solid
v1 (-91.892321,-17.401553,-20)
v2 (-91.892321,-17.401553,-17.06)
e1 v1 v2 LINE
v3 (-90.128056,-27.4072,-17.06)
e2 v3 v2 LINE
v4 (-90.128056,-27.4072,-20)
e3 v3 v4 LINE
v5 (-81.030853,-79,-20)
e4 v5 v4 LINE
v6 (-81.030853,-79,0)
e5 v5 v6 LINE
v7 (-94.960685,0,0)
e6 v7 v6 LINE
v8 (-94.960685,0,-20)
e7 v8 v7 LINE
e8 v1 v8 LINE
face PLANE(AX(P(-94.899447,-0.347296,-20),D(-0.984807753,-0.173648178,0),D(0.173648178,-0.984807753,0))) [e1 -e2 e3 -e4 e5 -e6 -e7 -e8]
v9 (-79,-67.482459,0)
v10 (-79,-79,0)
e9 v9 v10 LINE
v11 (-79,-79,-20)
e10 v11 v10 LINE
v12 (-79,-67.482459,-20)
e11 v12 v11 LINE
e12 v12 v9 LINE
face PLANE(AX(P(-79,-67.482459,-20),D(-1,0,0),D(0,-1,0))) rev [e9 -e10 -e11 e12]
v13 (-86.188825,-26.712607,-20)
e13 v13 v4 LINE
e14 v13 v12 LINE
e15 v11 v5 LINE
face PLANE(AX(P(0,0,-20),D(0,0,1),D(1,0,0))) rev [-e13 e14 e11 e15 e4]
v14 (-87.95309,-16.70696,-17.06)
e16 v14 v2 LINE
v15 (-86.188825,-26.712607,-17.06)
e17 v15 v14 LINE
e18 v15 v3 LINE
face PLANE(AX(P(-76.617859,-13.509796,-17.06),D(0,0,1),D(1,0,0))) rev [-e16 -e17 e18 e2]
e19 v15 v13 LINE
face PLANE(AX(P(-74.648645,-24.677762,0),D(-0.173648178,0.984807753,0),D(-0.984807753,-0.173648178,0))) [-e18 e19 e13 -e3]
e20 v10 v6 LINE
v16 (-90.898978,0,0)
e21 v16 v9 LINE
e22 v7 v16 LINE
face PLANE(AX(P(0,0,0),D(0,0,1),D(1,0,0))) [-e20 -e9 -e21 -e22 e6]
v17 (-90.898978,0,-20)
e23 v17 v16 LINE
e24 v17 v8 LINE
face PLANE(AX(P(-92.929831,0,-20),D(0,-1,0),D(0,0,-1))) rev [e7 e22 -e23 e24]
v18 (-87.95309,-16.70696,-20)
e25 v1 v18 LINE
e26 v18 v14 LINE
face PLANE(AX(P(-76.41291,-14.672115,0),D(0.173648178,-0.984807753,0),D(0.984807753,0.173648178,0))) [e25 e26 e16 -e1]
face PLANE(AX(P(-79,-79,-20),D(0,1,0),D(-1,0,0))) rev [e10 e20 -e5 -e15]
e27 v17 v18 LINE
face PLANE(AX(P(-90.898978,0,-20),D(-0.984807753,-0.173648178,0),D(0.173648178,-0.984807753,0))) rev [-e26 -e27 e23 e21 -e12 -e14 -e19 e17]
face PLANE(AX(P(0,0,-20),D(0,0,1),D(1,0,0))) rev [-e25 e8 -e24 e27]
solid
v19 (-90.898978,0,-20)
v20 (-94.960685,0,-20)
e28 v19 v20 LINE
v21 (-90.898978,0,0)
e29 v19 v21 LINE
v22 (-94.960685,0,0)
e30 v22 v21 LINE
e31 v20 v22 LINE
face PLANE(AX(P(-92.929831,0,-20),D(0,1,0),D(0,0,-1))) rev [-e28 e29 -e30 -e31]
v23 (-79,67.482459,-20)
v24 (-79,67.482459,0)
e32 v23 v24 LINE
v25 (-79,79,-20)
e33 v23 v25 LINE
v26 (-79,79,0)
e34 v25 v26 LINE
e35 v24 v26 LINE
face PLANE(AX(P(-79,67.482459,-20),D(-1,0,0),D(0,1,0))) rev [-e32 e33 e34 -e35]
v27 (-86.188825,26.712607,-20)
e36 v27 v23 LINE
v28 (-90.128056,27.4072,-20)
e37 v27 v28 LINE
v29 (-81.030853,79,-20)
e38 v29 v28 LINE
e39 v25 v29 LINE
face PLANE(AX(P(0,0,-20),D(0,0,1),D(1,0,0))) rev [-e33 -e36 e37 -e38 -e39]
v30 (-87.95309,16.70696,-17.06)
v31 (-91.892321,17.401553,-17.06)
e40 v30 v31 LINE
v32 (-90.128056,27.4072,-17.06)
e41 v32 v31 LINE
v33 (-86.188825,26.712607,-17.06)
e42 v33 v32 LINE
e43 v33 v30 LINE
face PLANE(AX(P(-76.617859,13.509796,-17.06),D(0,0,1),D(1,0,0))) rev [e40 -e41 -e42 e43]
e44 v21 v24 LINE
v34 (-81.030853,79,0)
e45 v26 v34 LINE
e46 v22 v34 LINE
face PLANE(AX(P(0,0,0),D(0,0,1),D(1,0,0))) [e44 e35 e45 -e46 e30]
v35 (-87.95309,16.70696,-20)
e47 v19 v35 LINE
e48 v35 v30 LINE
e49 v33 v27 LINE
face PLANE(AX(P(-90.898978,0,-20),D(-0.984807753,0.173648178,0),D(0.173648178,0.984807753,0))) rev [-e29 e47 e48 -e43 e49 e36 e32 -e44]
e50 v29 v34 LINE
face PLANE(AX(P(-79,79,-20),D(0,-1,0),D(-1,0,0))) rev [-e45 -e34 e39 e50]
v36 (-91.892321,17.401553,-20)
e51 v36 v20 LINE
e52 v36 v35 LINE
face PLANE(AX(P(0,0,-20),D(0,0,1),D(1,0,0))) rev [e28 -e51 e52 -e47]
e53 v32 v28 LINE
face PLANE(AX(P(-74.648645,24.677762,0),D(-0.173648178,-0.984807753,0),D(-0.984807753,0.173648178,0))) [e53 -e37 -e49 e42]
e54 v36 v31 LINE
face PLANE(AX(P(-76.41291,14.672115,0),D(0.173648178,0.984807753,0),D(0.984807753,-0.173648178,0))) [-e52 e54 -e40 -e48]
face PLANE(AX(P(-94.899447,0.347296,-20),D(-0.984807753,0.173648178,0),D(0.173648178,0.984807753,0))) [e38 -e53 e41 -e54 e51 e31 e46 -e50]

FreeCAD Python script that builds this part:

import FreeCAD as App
import Part
import Sketcher

V = App.Vector
Q = App.Units.Quantity

doc = App.newDocument("Part")
body = doc.addObject("PartDesign::Body", "Body")

sketch1 = body.newObject("Sketcher::SketchObject", "Sketch")
sketch1.AttachmentSupport = (doc.getObject("XY_Plane"), [""])
sketch1.MapMode = "FlatFace"
sketch1.addGeometry([
    Part.LineSegment(V(-94.899447, -0.347296, 0), V(-81.030853, -79, 0)),
    Part.LineSegment(V(-81.030853, -79, 0), V(-79, -79, 0)),
    Part.LineSegment(V(-79, -79, 0), V(-79, -67.482459, 0)),
    Part.LineSegment(V(-79, -67.482459, 0), V(-90.898978, 0, 0)),
    Part.LineSegment(V(-90.898978, 0, 0), V(-94.960685, 0, 0)),
    Part.LineSegment(V(-94.960685, 0, 0), V(-94.899447, -0.347296, 0)),
], False)
sketch1.addConstraint([
    Sketcher.Constraint("Coincident", 0, 2, 1, 1),
    Sketcher.Constraint("Coincident", 1, 2, 2, 1),
    Sketcher.Constraint("Coincident", 2, 2, 3, 1),
    Sketcher.Constraint("Coincident", 3, 2, 4, 1),
    Sketcher.Constraint("Coincident", 4, 2, 5, 1),
    Sketcher.Constraint("Coincident", 5, 2, 0, 1),
    Sketcher.Constraint("Horizontal", 1),
    Sketcher.Constraint("Vertical", 2),
    Sketcher.Constraint("Horizontal", 4),
    Sketcher.Constraint("PointOnObject", 3, 2, -1),
    Sketcher.Constraint("Parallel", 0, 3),
    Sketcher.Constraint("Parallel", 3, 5),
    Sketcher.Constraint("Angle", 0, Q("-80 deg")),
    Sketcher.Constraint("DistanceY", 0, 2, -1, 1, Q("79 mm")),
    Sketcher.Constraint("DistanceX", 1, 2, -1, 1, Q("79 mm")),
    Sketcher.Constraint("DistanceY", 2, 1, 2, 2, Q("11.517541 mm")),
    Sketcher.Constraint("Distance", 0, Q("79.866048 mm")),
    Sketcher.Constraint("DistanceX", 1, 1, 1, 2, Q("2.030853 mm")),
])
pad1 = body.newObject("PartDesign::Pad", "Pad")
pad1.Profile = sketch1
pad1.Length = 20
pad1.Reversed = True

sketch2 = body.newObject("Sketcher::SketchObject", "Sketch001")
sketch2.Placement = App.Placement(V(-92.09727, -16.239233, 0), App.Rotation(V(0, 0, 1), V(-0.173648178, 0.984807753, 0), V(-0.984807753, -0.173648178, 0), "ZXY"))
sketch2.addGeometry([
    Part.LineSegment(V(-20, -1.18025, 0), V(-20, -11.34025, 0)),
    Part.LineSegment(V(-20, -11.34025, 0), V(-17.06, -11.34025, 0)),
    Part.LineSegment(V(-17.06, -11.34025, 0), V(-17.06, -1.18025, 0)),
    Part.LineSegment(V(-17.06, -1.18025, 0), V(-20, -1.18025, 0)),
], False)
sketch2.addConstraint([
    Sketcher.Constraint("Coincident", 0, 2, 1, 1),
    Sketcher.Constraint("Coincident", 1, 2, 2, 1),
    Sketcher.Constraint("Coincident", 2, 2, 3, 1),
    Sketcher.Constraint("Coincident", 3, 2, 0, 1),
    Sketcher.Constraint("Vertical", 0),
    Sketcher.Constraint("Horizontal", 1),
    Sketcher.Constraint("Vertical", 2),
    Sketcher.Constraint("Horizontal", 3),
    Sketcher.Constraint("DistanceX", 0, 2, -1, 1, Q("20 mm")),
    Sketcher.Constraint("DistanceX", 1, 1, 1, 2, Q("2.94 mm")),
    Sketcher.Constraint("DistanceY", 0, 2, 0, 1, Q("10.16 mm")),
    Sketcher.Constraint("DistanceY", 0, 2, -1, 1, Q("11.34025 mm")),
])
pocket1 = body.newObject("PartDesign::Pocket", "Pocket")
pocket1.Profile = sketch2
pocket1.Type = "ThroughAll"
body2 = doc.addObject("PartDesign::Body", "Body001")
doc.recompute()

mirroring = doc.addObject("Part::Mirroring", "Mirroring")
mirroring.Source = body
mirroring.Base = V(0, 0, 0)
mirroring.Normal = V(0, 1, 0)
body2.BaseFeature = mirroring
doc.recompute()
mirroring.Visibility = False

doc.recompute()
